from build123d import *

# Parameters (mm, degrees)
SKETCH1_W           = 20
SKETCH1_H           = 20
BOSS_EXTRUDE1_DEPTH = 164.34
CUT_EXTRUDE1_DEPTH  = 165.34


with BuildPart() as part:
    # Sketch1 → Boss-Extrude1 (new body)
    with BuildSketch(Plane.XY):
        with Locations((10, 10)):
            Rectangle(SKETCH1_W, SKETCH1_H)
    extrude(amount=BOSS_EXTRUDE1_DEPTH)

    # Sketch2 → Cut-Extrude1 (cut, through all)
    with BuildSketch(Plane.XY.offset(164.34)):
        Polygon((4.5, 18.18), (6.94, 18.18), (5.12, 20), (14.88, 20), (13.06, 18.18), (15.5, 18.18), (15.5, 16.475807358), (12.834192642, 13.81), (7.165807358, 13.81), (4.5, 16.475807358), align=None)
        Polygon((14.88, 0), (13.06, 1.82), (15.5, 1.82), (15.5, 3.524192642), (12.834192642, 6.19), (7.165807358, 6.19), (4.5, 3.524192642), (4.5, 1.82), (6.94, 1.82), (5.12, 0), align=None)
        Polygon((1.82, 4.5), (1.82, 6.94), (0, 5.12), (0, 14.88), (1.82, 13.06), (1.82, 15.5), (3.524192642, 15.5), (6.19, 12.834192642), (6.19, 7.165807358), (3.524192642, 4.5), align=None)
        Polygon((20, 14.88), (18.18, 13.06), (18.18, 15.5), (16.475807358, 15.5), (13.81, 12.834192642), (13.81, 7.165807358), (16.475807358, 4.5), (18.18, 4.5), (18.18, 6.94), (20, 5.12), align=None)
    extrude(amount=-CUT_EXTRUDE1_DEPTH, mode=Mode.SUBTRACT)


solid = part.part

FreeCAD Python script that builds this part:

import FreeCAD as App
import Part
import Sketcher

V = App.Vector

doc = App.newDocument("Part")
body = doc.addObject("PartDesign::Body", "Body")

# Sketch on XY plane
sketch1 = body.newObject("Sketcher::SketchObject", "Sketch")
sketch1.AttachmentSupport = (doc.getObject("XY_Plane"), [""])
sketch1.MapMode = "FlatFace"
sketch1.addGeometry([
    Part.LineSegment(V(0, 20, 0), V(0, 0, 0)),
    Part.LineSegment(V(0, 0, 0), V(20, 0, 0)),
    Part.LineSegment(V(20, 0, 0), V(20, 20, 0)),
    Part.LineSegment(V(20, 20, 0), V(0, 20, 0)),
], False)
sketch1.addConstraint([
    Sketcher.Constraint("Coincident", 0, 2, 1, 1),
    Sketcher.Constraint("Coincident", 1, 2, 2, 1),
    Sketcher.Constraint("Coincident", 2, 2, 3, 1),
    Sketcher.Constraint("Coincident", 3, 2, 0, 1),
    Sketcher.Constraint("Vertical", 0),
    Sketcher.Constraint("Horizontal", 1),
    Sketcher.Constraint("Vertical", 2),
    Sketcher.Constraint("Horizontal", 3),
    Sketcher.Constraint("Coincident", 0, 2, -1, 1),
    Sketcher.Constraint("Equal", 3, 0),
    Sketcher.Constraint("DistanceX", 1, 1, 1, 2, 20.0),
])
pad1 = body.newObject("PartDesign::Pad", "Pad")
pad1.Profile = sketch1
pad1.Length = 164.34

# Sketch on XY plane
sketch2 = body.newObject("Sketcher::SketchObject", "Sketch001")
sketch2.AttachmentSupport = (doc.getObject("XY_Plane"), [""])
sketch2.MapMode = "FlatFace"
sketch2.AttachmentOffset = App.Placement(V(0, 0, 164.34), App.Rotation())
sketch2.addGeometry([
    Part.LineSegment(V(6.9, 18.2, 0), V(4.5, 18.2, 0)),  # 0
    Part.LineSegment(V(4.5, 18.2, 0), V(4.5, 16.5, 0)),  # 1
    Part.LineSegment(V(4.5, 16.5, 0), V(7.2, 13.8, 0)),  # 2
    Part.LineSegment(V(7.2, 13.8, 0), V(12.8, 13.8, 0)),  # 3
    Part.LineSegment(V(12.8, 13.8, 0), V(15.5, 16.5, 0)),  # 4
    Part.LineSegment(V(15.5, 16.5, 0), V(15.5, 18.2, 0)),  # 5
    Part.LineSegment(V(15.5, 18.2, 0), V(13.1, 18.2, 0)),  # 6
    Part.LineSegment(V(13.1, 18.2, 0), V(14.9, 20, 0)),  # 7
    Part.LineSegment(V(14.9, 20, 0), V(5.1, 20, 0)),  # 8
    Part.LineSegment(V(5.1, 20, 0), V(6.9, 18.2, 0)),  # 9
    Part.LineSegment(V(14.9, 0, 0), V(13.1, 1.8, 0)),  # 10
    Part.LineSegment(V(13.1, 1.8, 0), V(15.5, 1.8, 0)),  # 11
    Part.LineSegment(V(15.5, 1.8, 0), V(15.5, 3.5, 0)),  # 12
    Part.LineSegment(V(15.5, 3.5, 0), V(12.8, 6.2, 0)),  # 13
    Part.LineSegment(V(12.8, 6.2, 0), V(7.2, 6.2, 0)),  # 14
    Part.LineSegment(V(7.2, 6.2, 0), V(4.5, 3.5, 0)),  # 15
    Part.LineSegment(V(4.5, 3.5, 0), V(4.5, 1.8, 0)),  # 16
    Part.LineSegment(V(4.5, 1.8, 0), V(6.9, 1.8, 0)),  # 17
    Part.LineSegment(V(6.9, 1.8, 0), V(5.1, 0, 0)),  # 18
    Part.LineSegment(V(5.1, 0, 0), V(14.9, 0, 0)),  # 19
    Part.LineSegment(V(1.8, 6.9, 0), V(1.8, 4.5, 0)),  # 20
    Part.LineSegment(V(1.8, 4.5, 0), V(3.5, 4.5, 0)),  # 21
    Part.LineSegment(V(3.5, 4.5, 0), V(6.2, 7.2, 0)),  # 22
    Part.LineSegment(V(6.2, 7.2, 0), V(6.2, 12.8, 0)),  # 23
    Part.LineSegment(V(6.2, 12.8, 0), V(3.5, 15.5, 0)),  # 24
    Part.LineSegment(V(3.5, 15.5, 0), V(1.8, 15.5, 0)),  # 25
    Part.LineSegment(V(1.8, 15.5, 0), V(1.8, 13.1, 0)),  # 26
    Part.LineSegment(V(1.8, 13.1, 0), V(0, 14.9, 0)),  # 27
    Part.LineSegment(V(0, 14.9, 0), V(0, 5.1, 0)),  # 28
    Part.LineSegment(V(0, 5.1, 0), V(1.8, 6.9, 0)),  # 29
    Part.LineSegment(V(20, 14.9, 0), V(18.2, 13.1, 0)),  # 30
    Part.LineSegment(V(18.2, 13.1, 0), V(18.2, 15.5, 0)),  # 31
    Part.LineSegment(V(18.2, 15.5, 0), V(16.5, 15.5, 0)),  # 32
    Part.LineSegment(V(16.5, 15.5, 0), V(13.8, 12.8, 0)),  # 33
    Part.LineSegment(V(13.8, 12.8, 0), V(13.8, 7.2, 0)),  # 34
    Part.LineSegment(V(13.8, 7.2, 0), V(16.5, 4.5, 0)),  # 35
    Part.LineSegment(V(16.5, 4.5, 0), V(18.2, 4.5, 0)),  # 36
    Part.LineSegment(V(18.2, 4.5, 0), V(18.2, 6.9, 0)),  # 37
    Part.LineSegment(V(18.2, 6.9, 0), V(20, 5.1, 0)),  # 38
    Part.LineSegment(V(20, 5.1, 0), V(20, 14.9, 0)),  # 39
], False)
sketch2.addConstraint([
    Sketcher.Constraint("Coincident", 0, 2, 1, 1),
    Sketcher.Constraint("Coincident", 1, 2, 2, 1),
    Sketcher.Constraint("Coincident", 2, 2, 3, 1),
    Sketcher.Constraint("Coincident", 3, 2, 4, 1),
    Sketcher.Constraint("Coincident", 4, 2, 5, 1),
    Sketcher.Constraint("Coincident", 5, 2, 6, 1),
    Sketcher.Constraint("Coincident", 6, 2, 7, 1),
    Sketcher.Constraint("Coincident", 7, 2, 8, 1),
    Sketcher.Constraint("Coincident", 8, 2, 9, 1),
    Sketcher.Constraint("Coincident", 9, 2, 0, 1),
    Sketcher.Constraint("Coincident", 10, 2, 11, 1),
    Sketcher.Constraint("Coincident", 11, 2, 12, 1),
    Sketcher.Constraint("Coincident", 12, 2, 13, 1),
    Sketcher.Constraint("Coincident", 13, 2, 14, 1),
    Sketcher.Constraint("Coincident", 14, 2, 15, 1),
    Sketcher.Constraint("Coincident", 15, 2, 16, 1),
    Sketcher.Constraint("Coincident", 16, 2, 17, 1),
    Sketcher.Constraint("Coincident", 17, 2, 18, 1),
    Sketcher.Constraint("Coincident", 18, 2, 19, 1),
    Sketcher.Constraint("Coincident", 19, 2, 10, 1),
    Sketcher.Constraint("Coincident", 20, 2, 21, 1),
    Sketcher.Constraint("Coincident", 21, 2, 22, 1),
    Sketcher.Constraint("Coincident", 22, 2, 23, 1),
    Sketcher.Constraint("Coincident", 23, 2, 24, 1),
    Sketcher.Constraint("Coincident", 24, 2, 25, 1),
    Sketcher.Constraint("Coincident", 25, 2, 26, 1),
    Sketcher.Constraint("Coincident", 26, 2, 27, 1),
    Sketcher.Constraint("Coincident", 27, 2, 28, 1),
    Sketcher.Constraint("Coincident", 28, 2, 29, 1),
    Sketcher.Constraint("Coincident", 29, 2, 20, 1),
    Sketcher.Constraint("Coincident", 30, 2, 31, 1),
    Sketcher.Constraint("Coincident", 31, 2, 32, 1),
    Sketcher.Constraint("Coincident", 32, 2, 33, 1),
    Sketcher.Constraint("Coincident", 33, 2, 34, 1),
    Sketcher.Constraint("Coincident", 34, 2, 35, 1),
    Sketcher.Constraint("Coincident", 35, 2, 36, 1),
    Sketcher.Constraint("Coincident", 36, 2, 37, 1),
    Sketcher.Constraint("Coincident", 37, 2, 38, 1),
    Sketcher.Constraint("Coincident", 38, 2, 39, 1),
    Sketcher.Constraint("Coincident", 39, 2, 30, 1),
    Sketcher.Constraint("Horizontal", 0),
    Sketcher.Constraint("Vertical", 1),
    Sketcher.Constraint("Horizontal", 3),
    Sketcher.Constraint("Vertical", 5),
    Sketcher.Constraint("Horizontal", 6),
    Sketcher.Constraint("Horizontal", 8),
    Sketcher.Constraint("Horizontal", 11),
    Sketcher.Constraint("Vertical", 12),
    Sketcher.Constraint("Horizontal", 14),
    Sketcher.Constraint("Vertical", 16),
    Sketcher.Constraint("Horizontal", 17),
    Sketcher.Constraint("Horizontal", 19),
    Sketcher.Constraint("Vertical", 20),
    Sketcher.Constraint("Horizontal", 21),
    Sketcher.Constraint("Vertical", 23),
    Sketcher.Constraint("Horizontal", 25),
    Sketcher.Constraint("Vertical", 26),
    Sketcher.Constraint("Vertical", 28),
    Sketcher.Constraint("Vertical", 31),
    Sketcher.Constraint("Horizontal", 32),
    Sketcher.Constraint("Vertical", 34),
    Sketcher.Constraint("Horizontal", 36),
    Sketcher.Constraint("Vertical", 37),
    Sketcher.Constraint("Vertical", 39),
    Sketcher.Constraint("PointOnObject", 18, 2, -1),
    Sketcher.Constraint("PointOnObject", 27, 2, -2),
    Sketcher.Constraint("Perpendicular", 2, 4),
    Sketcher.Constraint("Parallel", 4, 7),
    Sketcher.Constraint("Perpendicular", 7, 9),
    Sketcher.Constraint("Parallel", 9, 10),
    Sketcher.Constraint("Parallel", 10, 13),
    Sketcher.Constraint("Perpendicular", 13, 15),
    Sketcher.Constraint("Parallel", 15, 18),
    Sketcher.Constraint("Parallel", 18, 22),
    Sketcher.Constraint("Perpendicular", 22, 24),
    Sketcher.Constraint("Parallel", 24, 27),
    Sketcher.Constraint("Perpendicular", 27, 29),
    Sketcher.Constraint("Parallel", 29, 30),
    Sketcher.Constraint("Parallel", 30, 33),
    Sketcher.Constraint("Perpendicular", 33, 35),
    Sketcher.Constraint("Parallel", 35, 38),
    Sketcher.Constraint("Horizontal", 1, 2, 4, 2),
    Sketcher.Constraint("Horizontal", 0, 2, 5, 2),
    Sketcher.Constraint("Horizontal", 12, 2, 15, 2),
    Sketcher.Constraint("Horizontal", 11, 2, 16, 2),
    Sketcher.Constraint("Horizontal", 26, 2, 30, 2),
    Sketcher.Constraint("Horizontal", 25, 2, 31, 2),
    Sketcher.Constraint("Horizontal", 23, 2, 33, 2),
    Sketcher.Constraint("Horizontal", 22, 2, 34, 2),
    Sketcher.Constraint("Horizontal", 21, 2, 35, 2),
    Sketcher.Constraint("Horizontal", 29, 2, 37, 2),
    Sketcher.Constraint("Horizontal", 28, 2, 38, 2),
    Sketcher.Constraint("Horizontal", 27, 2, 39, 2),
    Sketcher.Constraint("Vertical", 6, 2, 10, 2),
    Sketcher.Constraint("Vertical", 5, 2, 11, 2),
    Sketcher.Constraint("Vertical", 3, 2, 13, 2),
    Sketcher.Constraint("Vertical", 2, 2, 14, 2),
    Sketcher.Constraint("Vertical", 1, 2, 15, 2),
    Sketcher.Constraint("Vertical", 9, 2, 17, 2),
    Sketcher.Constraint("Vertical", 8, 2, 18, 2),
    Sketcher.Constraint("Vertical", 21, 2, 24, 2),
    Sketcher.Constraint("Vertical", 20, 2, 25, 2),
    Sketcher.Constraint("Equal", 0, 6),
    Sketcher.Constraint("Equal", 25, 32),
    Sketcher.Constraint("Equal", 36, 1),
    Sketcher.Constraint("Equal", 5, 12),
    Sketcher.Constraint("Equal", 17, 20),
    Sketcher.Constraint("Equal", 14, 23),
    Sketcher.Constraint("Equal", 20, 26),
    Sketcher.Constraint("Equal", 19, 28),
    Sketcher.Constraint("Equal", 15, 22),
    Sketcher.Constraint("DistanceY", -1, 1, 7, 2, 20.0),
    Sketcher.Constraint("DistanceX", -1, 1, 38, 2, 20.0),
    Sketcher.Constraint("DistanceX", 1, 2, 4, 2, 11.0),
    Sketcher.Constraint("DistanceX", 0, 2, 0, 1, 2.44),
    Sketcher.Constraint("DistanceX", 8, 2, 8, 1, 9.76),
    Sketcher.Constraint("DistanceX", -1, 1, 0, 2, 4.5),
    Sketcher.Constraint("DistanceY", -1, 1, 20, 2, 4.5),
    Sketcher.Constraint("DistanceY", -1, 1, 2, 2, 13.81),
    Sketcher.Constraint("Distance", 2, 3.770021),
])
pocket1 = body.newObject("PartDesign::Pocket", "Pocket")
pocket1.Profile = sketch2
pocket1.Type = "ThroughAll"

doc.recompute()
